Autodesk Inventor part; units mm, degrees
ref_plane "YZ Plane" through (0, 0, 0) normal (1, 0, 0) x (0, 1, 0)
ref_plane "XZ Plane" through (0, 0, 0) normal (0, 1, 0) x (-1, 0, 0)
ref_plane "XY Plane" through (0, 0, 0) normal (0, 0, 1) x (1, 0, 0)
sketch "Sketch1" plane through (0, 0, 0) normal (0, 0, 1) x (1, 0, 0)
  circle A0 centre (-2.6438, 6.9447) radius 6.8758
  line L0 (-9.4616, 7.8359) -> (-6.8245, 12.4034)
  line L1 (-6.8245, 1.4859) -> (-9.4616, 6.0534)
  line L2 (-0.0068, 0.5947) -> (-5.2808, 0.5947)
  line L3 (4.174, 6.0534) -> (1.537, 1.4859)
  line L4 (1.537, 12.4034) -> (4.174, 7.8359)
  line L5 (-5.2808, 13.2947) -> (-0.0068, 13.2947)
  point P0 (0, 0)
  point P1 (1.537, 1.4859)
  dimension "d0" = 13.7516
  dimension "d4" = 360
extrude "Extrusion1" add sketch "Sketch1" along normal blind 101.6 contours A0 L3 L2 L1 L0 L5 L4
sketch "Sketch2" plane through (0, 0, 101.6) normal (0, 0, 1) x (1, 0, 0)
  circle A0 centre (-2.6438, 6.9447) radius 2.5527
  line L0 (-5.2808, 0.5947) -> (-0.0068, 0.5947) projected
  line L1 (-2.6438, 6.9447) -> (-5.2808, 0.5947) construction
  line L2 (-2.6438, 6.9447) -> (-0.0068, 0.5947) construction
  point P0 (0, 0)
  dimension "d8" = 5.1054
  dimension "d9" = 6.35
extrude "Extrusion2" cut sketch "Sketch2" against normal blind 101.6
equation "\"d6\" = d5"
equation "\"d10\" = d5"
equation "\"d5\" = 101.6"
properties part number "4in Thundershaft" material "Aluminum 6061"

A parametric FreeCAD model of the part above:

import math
import FreeCAD as App
import Part
import Sketcher

V = App.Vector
Q = App.Units.Quantity

doc = App.newDocument("Part")
body = doc.addObject("PartDesign::Body", "Body")

sketch1 = body.newObject("Sketcher::SketchObject", "Sketch")
sketch1.AttachmentSupport = (doc.getObject("XY_Plane"), [""])
sketch1.MapMode = "FlatFace"
sketch1.addGeometry([
    Part.ArcOfCircle(Part.Circle(V(-2.6, 6.9, 0), V(0, 0, 1), 6.9), math.radians(-7.45), math.radians(7.45)),
    Part.LineSegment(V(4.2, 7.8, 0), V(1.5, 12.4, 0)),
    Part.ArcOfCircle(Part.Circle(V(-2.6, 6.9, 0), V(0, 0, 1), 6.9), math.radians(52.55), math.radians(67.45)),
    Part.LineSegment(V(0, 13.3, 0), V(-5.3, 13.3, 0)),
    Part.ArcOfCircle(Part.Circle(V(-2.6, 6.9, 0), V(0, 0, 1), 6.9), math.radians(112.55), math.radians(127.45)),
    Part.LineSegment(V(-6.8, 12.4, 0), V(-9.5, 7.8, 0)),
    Part.ArcOfCircle(Part.Circle(V(-2.6, 6.9, 0), V(0, 0, 1), 6.9), math.radians(172.55), math.radians(187.45)),
    Part.LineSegment(V(-9.5, 6.1, 0), V(-6.8, 1.5, 0)),
    Part.ArcOfCircle(Part.Circle(V(-2.6, 6.9, 0), V(0, 0, 1), 6.9), math.radians(-127.45), math.radians(-112.55)),
    Part.LineSegment(V(-5.3, 0.6, 0), V(0, 0.6, 0)),
    Part.ArcOfCircle(Part.Circle(V(-2.6, 6.9, 0), V(0, 0, 1), 6.9), math.radians(-67.45), math.radians(-52.55)),
    Part.LineSegment(V(1.5, 1.5, 0), V(4.2, 6.1, 0)),
], False)
sketch1.addConstraint([
    Sketcher.Constraint("Coincident", 0, 2, 1, 1),
    Sketcher.Constraint("Coincident", 1, 2, 2, 1),
    Sketcher.Constraint("Coincident", 2, 2, 3, 1),
    Sketcher.Constraint("Coincident", 3, 2, 4, 1),
    Sketcher.Constraint("Coincident", 4, 2, 5, 1),
    Sketcher.Constraint("Coincident", 5, 2, 6, 1),
    Sketcher.Constraint("Coincident", 6, 2, 7, 1),
    Sketcher.Constraint("Coincident", 7, 2, 8, 1),
    Sketcher.Constraint("Coincident", 8, 2, 9, 1),
    Sketcher.Constraint("Coincident", 9, 2, 10, 1),
    Sketcher.Constraint("Coincident", 10, 2, 11, 1),
    Sketcher.Constraint("Coincident", 11, 2, 0, 1),
    Sketcher.Constraint("Horizontal", 3),
    Sketcher.Constraint("Horizontal", 9),
    Sketcher.Constraint("Coincident", 2, 3, 0, 3),
    Sketcher.Constraint("Coincident", 4, 3, 0, 3),
    Sketcher.Constraint("Coincident", 6, 3, 0, 3),
    Sketcher.Constraint("Coincident", 8, 3, 0, 3),
    Sketcher.Constraint("Coincident", 10, 3, 0, 3),
    Sketcher.Constraint("Equal", 0, 2),
    Sketcher.Constraint("Equal", 2, 4),
    Sketcher.Constraint("Equal", 4, 6),
    Sketcher.Constraint("Equal", 6, 8),
    Sketcher.Constraint("Equal", 8, 10),
    Sketcher.Constraint("Parallel", 1, 7),
    Sketcher.Constraint("Parallel", 5, 11),
    Sketcher.Constraint("Horizontal", 1, 2, 4, 2),
    Sketcher.Constraint("Horizontal", 0, 2, 5, 2),
    Sketcher.Constraint("Horizontal", 7, 2, 10, 2),
    Sketcher.Constraint("Vertical", 5, 2, 6, 2),
    Sketcher.Constraint("Vertical", 3, 2, 8, 2),
    Sketcher.Constraint("Radius", 0, Q("0.2707 in")),
    Sketcher.Constraint("Angle", 1, Q("119.9996 deg")),
    Sketcher.Constraint("DistanceY", 0, 3, 2, 2, Q("0.25 in")),
    Sketcher.Constraint("DistanceY", 10, 2, 0, 2, Q("0.25 in")),
    Sketcher.Constraint("DistanceY", -1, 1, 0, 2, Q("0.3085 in")),
    Sketcher.Constraint("DistanceX", -1, 1, 1, 2, Q("0.0605 in")),
])
pad1 = body.newObject("PartDesign::Pad", "Pad")
pad1.Profile = sketch1
pad1.Length = Q("4 in")

sketch2 = body.newObject("Sketcher::SketchObject", "Sketch001")
sketch2.AttachmentSupport = (doc.getObject("XY_Plane"), [""])
sketch2.MapMode = "FlatFace"
sketch2.AttachmentOffset = App.Placement(V(0, 0, 4 * 25.4), App.Rotation())
sketch2.addGeometry(Part.Circle(V(-2.6, 6.9, 0), V(0, 0, 1), 2.6), False)
sketch2.addConstraint([
    Sketcher.Constraint("Diameter", 0, Q("0.201 in")),
    Sketcher.Constraint("DistanceX", 0, 3, -1, 1, 2.6438),
    Sketcher.Constraint("DistanceY", -1, 1, 0, 3, 6.9447),
])
pocket1 = body.newObject("PartDesign::Pocket", "Pocket")
pocket1.Profile = sketch2
pocket1.Length = Q("4 in")

doc.recompute()
